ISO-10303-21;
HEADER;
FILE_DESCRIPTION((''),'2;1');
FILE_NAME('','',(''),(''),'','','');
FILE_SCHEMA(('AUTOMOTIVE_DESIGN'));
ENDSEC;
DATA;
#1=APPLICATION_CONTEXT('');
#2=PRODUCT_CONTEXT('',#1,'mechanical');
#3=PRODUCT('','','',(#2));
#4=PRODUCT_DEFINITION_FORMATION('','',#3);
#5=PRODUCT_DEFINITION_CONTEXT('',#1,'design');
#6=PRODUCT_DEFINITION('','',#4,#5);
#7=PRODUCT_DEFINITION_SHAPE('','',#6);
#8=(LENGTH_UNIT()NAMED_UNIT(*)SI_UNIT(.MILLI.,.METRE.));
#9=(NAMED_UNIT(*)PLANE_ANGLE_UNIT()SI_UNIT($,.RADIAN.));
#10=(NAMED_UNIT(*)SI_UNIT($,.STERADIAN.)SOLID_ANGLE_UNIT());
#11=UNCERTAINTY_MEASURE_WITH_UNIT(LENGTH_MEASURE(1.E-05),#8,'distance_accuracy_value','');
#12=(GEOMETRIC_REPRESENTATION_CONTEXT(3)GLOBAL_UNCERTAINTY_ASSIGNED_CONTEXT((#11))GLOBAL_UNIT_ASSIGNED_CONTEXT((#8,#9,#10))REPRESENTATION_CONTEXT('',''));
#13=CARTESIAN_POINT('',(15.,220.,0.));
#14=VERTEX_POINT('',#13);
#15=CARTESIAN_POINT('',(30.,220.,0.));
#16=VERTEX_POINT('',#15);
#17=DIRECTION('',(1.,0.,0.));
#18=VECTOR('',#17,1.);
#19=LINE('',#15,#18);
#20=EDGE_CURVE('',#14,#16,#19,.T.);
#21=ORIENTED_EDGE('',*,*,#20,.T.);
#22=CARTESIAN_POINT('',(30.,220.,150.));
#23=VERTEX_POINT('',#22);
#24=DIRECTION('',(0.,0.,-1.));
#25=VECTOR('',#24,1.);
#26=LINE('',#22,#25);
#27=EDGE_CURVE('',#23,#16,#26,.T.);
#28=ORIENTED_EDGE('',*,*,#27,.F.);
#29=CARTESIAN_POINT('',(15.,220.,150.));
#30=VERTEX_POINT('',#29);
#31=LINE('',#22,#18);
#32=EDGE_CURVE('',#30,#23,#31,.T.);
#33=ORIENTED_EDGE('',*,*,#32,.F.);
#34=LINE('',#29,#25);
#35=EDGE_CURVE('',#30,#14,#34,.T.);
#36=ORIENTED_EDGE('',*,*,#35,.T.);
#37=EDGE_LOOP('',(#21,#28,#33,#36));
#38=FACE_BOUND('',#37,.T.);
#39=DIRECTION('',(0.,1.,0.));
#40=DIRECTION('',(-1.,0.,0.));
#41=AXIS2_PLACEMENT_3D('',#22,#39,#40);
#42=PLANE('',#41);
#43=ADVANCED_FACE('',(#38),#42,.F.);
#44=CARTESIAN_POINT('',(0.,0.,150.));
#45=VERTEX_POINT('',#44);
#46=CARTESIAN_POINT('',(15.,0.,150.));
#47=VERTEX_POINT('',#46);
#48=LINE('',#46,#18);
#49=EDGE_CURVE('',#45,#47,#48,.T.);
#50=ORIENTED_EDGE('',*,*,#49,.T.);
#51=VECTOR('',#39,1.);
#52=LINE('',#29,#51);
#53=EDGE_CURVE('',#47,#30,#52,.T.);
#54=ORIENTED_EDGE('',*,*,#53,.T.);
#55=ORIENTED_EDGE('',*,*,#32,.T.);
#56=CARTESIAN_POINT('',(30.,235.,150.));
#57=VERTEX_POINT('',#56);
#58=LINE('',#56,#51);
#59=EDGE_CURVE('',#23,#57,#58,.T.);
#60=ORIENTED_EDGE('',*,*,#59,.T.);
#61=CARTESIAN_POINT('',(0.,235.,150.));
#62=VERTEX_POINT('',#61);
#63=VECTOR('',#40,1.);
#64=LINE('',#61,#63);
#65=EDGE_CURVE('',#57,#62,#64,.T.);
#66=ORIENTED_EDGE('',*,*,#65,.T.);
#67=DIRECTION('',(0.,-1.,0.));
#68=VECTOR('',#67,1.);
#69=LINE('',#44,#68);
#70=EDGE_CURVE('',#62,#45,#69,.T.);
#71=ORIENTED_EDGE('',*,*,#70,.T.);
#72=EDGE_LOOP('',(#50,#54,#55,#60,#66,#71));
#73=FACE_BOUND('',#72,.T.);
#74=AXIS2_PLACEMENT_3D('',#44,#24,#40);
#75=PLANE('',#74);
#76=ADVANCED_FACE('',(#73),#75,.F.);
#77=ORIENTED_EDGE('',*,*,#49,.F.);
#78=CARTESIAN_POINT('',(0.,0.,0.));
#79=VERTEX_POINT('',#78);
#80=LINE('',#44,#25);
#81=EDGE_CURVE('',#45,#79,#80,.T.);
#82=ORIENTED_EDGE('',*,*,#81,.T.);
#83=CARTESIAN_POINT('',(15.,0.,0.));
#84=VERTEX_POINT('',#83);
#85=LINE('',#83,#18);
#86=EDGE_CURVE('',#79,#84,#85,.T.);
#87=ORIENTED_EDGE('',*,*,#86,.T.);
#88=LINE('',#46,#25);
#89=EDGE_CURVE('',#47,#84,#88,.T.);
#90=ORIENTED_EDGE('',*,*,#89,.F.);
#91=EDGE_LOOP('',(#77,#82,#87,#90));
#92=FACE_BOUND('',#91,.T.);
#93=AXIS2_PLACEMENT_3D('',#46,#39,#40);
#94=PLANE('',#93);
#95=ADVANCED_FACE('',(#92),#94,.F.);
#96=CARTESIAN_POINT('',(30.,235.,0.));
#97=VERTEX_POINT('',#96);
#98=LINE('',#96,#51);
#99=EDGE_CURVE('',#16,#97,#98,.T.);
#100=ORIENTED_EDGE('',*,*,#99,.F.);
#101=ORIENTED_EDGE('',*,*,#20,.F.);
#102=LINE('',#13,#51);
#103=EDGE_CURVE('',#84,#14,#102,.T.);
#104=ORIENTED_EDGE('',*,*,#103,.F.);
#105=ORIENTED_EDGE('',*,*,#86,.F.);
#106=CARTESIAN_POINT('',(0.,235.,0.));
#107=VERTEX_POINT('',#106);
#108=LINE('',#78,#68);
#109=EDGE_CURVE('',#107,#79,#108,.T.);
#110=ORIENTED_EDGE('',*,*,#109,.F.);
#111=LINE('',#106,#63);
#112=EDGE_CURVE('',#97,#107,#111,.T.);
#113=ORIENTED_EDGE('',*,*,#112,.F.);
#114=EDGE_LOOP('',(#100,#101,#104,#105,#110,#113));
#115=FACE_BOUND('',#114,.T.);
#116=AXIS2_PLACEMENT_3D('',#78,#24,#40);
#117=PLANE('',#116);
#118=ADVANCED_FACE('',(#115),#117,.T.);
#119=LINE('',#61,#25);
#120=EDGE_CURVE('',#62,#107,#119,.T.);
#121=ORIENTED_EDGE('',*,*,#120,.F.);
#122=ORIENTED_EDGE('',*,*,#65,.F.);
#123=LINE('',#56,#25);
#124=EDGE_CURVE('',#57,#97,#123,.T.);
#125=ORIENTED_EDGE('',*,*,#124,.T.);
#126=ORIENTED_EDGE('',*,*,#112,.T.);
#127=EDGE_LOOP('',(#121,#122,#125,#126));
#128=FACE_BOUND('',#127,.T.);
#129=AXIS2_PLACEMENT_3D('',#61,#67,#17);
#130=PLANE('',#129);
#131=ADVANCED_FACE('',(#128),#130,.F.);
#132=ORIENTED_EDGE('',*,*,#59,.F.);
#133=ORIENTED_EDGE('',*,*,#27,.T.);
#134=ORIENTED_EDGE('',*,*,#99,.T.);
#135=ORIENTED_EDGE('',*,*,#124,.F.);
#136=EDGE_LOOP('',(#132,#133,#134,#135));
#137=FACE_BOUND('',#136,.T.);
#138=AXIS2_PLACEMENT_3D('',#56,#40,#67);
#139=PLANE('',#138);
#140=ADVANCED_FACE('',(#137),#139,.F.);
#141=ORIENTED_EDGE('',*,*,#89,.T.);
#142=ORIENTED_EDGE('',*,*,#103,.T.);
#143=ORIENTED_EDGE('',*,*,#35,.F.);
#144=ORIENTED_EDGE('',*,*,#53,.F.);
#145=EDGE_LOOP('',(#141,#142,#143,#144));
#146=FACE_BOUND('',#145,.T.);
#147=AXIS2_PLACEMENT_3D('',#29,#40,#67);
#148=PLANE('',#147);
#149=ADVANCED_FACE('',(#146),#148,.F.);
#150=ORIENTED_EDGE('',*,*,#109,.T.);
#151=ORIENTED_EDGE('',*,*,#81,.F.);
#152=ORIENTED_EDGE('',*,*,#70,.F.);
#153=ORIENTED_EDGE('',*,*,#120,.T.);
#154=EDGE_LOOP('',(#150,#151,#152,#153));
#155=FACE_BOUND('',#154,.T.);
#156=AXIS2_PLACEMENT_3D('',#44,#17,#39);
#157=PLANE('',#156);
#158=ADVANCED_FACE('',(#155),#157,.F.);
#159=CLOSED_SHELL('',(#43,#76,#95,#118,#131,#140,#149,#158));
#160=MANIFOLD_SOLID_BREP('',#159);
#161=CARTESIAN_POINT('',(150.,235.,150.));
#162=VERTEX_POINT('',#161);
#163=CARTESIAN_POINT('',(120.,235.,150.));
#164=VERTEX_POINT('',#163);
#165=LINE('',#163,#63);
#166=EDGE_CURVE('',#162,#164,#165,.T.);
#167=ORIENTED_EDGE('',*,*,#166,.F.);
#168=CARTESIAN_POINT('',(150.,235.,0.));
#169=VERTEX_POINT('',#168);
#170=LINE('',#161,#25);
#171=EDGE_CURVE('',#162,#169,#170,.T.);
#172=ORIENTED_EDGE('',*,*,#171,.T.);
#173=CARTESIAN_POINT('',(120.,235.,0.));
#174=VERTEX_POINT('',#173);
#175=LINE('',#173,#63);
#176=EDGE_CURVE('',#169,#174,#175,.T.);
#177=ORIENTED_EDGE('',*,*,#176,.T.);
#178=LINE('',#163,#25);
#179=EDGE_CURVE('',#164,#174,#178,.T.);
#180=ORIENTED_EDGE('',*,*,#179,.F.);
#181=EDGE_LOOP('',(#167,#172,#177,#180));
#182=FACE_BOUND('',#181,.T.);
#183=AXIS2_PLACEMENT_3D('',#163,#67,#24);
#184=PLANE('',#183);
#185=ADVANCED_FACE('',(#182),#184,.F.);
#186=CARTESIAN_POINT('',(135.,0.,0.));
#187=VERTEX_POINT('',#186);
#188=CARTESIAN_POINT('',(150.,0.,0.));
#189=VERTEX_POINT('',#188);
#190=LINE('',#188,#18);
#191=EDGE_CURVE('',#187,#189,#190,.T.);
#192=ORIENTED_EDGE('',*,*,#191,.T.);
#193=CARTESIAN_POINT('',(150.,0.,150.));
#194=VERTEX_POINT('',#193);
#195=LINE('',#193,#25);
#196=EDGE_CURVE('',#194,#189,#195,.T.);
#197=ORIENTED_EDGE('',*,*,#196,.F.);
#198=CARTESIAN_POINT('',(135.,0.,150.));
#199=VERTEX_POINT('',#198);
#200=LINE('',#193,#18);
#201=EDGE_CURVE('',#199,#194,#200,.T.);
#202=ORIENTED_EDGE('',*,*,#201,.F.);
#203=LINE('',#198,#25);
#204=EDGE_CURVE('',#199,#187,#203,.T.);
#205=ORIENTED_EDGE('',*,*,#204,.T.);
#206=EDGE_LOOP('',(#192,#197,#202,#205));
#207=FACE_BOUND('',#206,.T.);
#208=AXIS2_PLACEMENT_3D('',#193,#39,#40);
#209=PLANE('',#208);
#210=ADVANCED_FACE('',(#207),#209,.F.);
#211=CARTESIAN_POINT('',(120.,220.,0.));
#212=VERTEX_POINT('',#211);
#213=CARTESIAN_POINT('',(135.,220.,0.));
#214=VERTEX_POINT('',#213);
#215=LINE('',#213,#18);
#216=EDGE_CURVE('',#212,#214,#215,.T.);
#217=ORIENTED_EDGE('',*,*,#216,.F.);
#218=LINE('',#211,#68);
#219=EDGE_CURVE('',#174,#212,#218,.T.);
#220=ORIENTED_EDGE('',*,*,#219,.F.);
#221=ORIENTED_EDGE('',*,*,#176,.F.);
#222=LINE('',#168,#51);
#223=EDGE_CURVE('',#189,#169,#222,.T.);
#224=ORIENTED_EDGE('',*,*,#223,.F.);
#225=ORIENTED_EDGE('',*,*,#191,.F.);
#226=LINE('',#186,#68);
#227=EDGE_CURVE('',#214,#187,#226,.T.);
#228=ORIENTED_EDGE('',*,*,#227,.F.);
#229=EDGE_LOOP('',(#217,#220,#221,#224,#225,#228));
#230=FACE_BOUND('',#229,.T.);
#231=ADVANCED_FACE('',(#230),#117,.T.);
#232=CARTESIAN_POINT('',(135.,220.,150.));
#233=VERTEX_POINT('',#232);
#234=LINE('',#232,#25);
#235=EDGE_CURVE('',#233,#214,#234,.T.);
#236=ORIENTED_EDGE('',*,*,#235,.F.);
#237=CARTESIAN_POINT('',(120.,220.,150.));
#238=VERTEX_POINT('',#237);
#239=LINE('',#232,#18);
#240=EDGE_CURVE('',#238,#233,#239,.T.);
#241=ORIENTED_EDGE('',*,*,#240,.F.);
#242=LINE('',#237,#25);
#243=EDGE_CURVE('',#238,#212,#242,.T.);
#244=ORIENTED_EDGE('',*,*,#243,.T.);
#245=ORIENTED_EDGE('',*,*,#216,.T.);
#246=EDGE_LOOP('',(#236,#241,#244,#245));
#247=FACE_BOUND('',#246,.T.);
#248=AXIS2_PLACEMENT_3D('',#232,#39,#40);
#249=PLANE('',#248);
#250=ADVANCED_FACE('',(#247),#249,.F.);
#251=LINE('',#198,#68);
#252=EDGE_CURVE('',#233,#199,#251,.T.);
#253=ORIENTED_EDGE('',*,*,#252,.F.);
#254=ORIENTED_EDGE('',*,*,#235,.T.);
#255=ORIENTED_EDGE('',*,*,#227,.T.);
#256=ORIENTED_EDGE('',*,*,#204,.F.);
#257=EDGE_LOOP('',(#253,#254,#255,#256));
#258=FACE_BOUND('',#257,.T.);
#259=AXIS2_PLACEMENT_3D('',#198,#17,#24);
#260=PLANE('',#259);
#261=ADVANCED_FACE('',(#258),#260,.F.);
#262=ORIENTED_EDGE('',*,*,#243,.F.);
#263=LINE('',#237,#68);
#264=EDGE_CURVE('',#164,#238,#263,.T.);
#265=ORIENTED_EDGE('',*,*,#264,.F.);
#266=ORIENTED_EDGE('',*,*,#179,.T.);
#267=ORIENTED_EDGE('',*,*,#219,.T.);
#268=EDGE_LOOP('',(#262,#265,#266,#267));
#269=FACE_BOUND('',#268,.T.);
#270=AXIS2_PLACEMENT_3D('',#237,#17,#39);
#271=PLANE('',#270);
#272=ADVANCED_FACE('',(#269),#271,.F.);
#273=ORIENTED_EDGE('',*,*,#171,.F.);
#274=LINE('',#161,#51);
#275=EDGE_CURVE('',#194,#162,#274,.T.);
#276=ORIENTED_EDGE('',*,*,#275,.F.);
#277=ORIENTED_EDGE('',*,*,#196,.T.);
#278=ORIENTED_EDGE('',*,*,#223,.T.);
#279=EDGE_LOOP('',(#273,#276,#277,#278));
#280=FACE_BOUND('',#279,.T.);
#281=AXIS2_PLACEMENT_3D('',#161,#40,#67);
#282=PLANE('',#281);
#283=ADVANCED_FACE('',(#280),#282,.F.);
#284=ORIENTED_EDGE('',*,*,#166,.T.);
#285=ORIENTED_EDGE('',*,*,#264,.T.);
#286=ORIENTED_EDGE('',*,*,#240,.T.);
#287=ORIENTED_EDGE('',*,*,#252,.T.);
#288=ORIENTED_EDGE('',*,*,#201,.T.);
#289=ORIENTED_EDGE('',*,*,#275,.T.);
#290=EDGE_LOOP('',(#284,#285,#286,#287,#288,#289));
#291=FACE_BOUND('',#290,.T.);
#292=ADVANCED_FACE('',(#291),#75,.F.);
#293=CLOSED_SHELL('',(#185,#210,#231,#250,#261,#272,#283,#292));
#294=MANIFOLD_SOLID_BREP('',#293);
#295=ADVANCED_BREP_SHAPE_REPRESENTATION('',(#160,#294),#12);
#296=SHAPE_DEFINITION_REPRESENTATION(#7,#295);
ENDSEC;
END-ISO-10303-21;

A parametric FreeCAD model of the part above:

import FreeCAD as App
import Part
import Sketcher
from FreeCAD import Vector
Q = App.Units.Quantity


def add_polygon(sketch, points):
    """Adds a closed chain of lines whose ends are joined by coincident constraints."""
    first, n = sketch.GeometryCount, len(points)
    for a, b in zip(points, points[1:] + points[:1]):
        sketch.addGeometry(Part.LineSegment(App.Vector(*a, 0), App.Vector(*b, 0)), False)
    for i in range(n):
        sketch.addConstraint(Sketcher.Constraint("Coincident", first + i, 2, first + (i + 1) % n, 1))

doc = App.newDocument("Part")
params = doc.addObject("Spreadsheet::Sheet", "Params")
for row, (alias, value) in enumerate([
    ("sketch1_width", "15 mm"),
    ("sketch1_height", "235 mm"),
    ("pad1_length", "150 mm"),
    ("sketch2_width", "15 mm"),
    ("sketch2_height", "220 mm"),
    ("pad2_length", "150 mm"),
], start=1):
    params.set(f"A{row}", alias)
    params.set(f"B{row}", "=" + value)
    params.setAlias(f"B{row}", alias)

body = doc.addObject("PartDesign::Body", "Body")

sketch1 = doc.addObject("Sketcher::SketchObject", "Sketch")
body.addObject(sketch1)
sketch1.AttachmentSupport = (doc.XY_Plane, [""])
sketch1.MapMode = "FlatFace"
add_polygon(sketch1, [(0, 235), (0, 0), (15, 0), (15, 220), (30, 220), (30, 235)])
sketch1.addConstraint(Sketcher.Constraint("Vertical", 0))
sketch1.addConstraint(Sketcher.Constraint("Horizontal", 1))
sketch1.addConstraint(Sketcher.Constraint("Vertical", 2))
sketch1.addConstraint(Sketcher.Constraint("Horizontal", 3))
sketch1.addConstraint(Sketcher.Constraint("Vertical", 4))
sketch1.addConstraint(Sketcher.Constraint("Horizontal", 5))
sketch1.addConstraint(Sketcher.Constraint("Coincident", 0, 2, -1, 1))
sketch1.addConstraint(Sketcher.Constraint("Equal", 1, 3))
sketch1.addConstraint(Sketcher.Constraint("Equal", 3, 4))
sketch1.addConstraint(Sketcher.Constraint("DistanceX", 1, 1, 1, 2, Q("15 mm")))
sketch1.addConstraint(Sketcher.Constraint("DistanceY", 0, 2, 0, 1, Q("235 mm")))
sketch1.setExpression("Constraints[15]", "Params.sketch1_width")
sketch1.setExpression("Constraints[16]", "Params.sketch1_height")
pad1 = doc.addObject("PartDesign::Pad", "Pad")
body.addObject(pad1)
pad1.Profile = sketch1
pad1.setExpression("Length", "Params.pad1_length")
body2 = doc.addObject("PartDesign::Body", "Body001")

sketch2 = doc.addObject("Sketcher::SketchObject", "Sketch001")
body2.addObject(sketch2)
sketch2.AttachmentSupport = (doc.getObject("XY_Plane001"), [""])
sketch2.MapMode = "FlatFace"
add_polygon(sketch2, [(135, 220), (135, 0), (150, 0), (150, 235), (120, 235), (120, 220)])
sketch2.addConstraint(Sketcher.Constraint("Vertical", 0))
sketch2.addConstraint(Sketcher.Constraint("Horizontal", 1))
sketch2.addConstraint(Sketcher.Constraint("Vertical", 2))
sketch2.addConstraint(Sketcher.Constraint("Horizontal", 3))
sketch2.addConstraint(Sketcher.Constraint("Vertical", 4))
sketch2.addConstraint(Sketcher.Constraint("Horizontal", 5))
sketch2.addConstraint(Sketcher.Constraint("PointOnObject", 0, 2, -1))
sketch2.addConstraint(Sketcher.Constraint("Equal", 1, 5))
sketch2.addConstraint(Sketcher.Constraint("Equal", 5, 4))
sketch2.addConstraint(Sketcher.Constraint("DistanceX", 1, 1, 1, 2, Q("15 mm")))
sketch2.addConstraint(Sketcher.Constraint("DistanceY", 0, 2, 0, 1, Q("220 mm")))
sketch2.addConstraint(Sketcher.Constraint("DistanceX", -1, 1, 0, 2, Q("135 mm")))
sketch2.setExpression("Constraints[15]", "Params.sketch2_width")
sketch2.setExpression("Constraints[16]", "Params.sketch2_height")
pad2 = doc.addObject("PartDesign::Pad", "Pad001")
body2.addObject(pad2)
pad2.Profile = sketch2
pad2.setExpression("Length", "Params.pad2_length")

doc.recompute()
